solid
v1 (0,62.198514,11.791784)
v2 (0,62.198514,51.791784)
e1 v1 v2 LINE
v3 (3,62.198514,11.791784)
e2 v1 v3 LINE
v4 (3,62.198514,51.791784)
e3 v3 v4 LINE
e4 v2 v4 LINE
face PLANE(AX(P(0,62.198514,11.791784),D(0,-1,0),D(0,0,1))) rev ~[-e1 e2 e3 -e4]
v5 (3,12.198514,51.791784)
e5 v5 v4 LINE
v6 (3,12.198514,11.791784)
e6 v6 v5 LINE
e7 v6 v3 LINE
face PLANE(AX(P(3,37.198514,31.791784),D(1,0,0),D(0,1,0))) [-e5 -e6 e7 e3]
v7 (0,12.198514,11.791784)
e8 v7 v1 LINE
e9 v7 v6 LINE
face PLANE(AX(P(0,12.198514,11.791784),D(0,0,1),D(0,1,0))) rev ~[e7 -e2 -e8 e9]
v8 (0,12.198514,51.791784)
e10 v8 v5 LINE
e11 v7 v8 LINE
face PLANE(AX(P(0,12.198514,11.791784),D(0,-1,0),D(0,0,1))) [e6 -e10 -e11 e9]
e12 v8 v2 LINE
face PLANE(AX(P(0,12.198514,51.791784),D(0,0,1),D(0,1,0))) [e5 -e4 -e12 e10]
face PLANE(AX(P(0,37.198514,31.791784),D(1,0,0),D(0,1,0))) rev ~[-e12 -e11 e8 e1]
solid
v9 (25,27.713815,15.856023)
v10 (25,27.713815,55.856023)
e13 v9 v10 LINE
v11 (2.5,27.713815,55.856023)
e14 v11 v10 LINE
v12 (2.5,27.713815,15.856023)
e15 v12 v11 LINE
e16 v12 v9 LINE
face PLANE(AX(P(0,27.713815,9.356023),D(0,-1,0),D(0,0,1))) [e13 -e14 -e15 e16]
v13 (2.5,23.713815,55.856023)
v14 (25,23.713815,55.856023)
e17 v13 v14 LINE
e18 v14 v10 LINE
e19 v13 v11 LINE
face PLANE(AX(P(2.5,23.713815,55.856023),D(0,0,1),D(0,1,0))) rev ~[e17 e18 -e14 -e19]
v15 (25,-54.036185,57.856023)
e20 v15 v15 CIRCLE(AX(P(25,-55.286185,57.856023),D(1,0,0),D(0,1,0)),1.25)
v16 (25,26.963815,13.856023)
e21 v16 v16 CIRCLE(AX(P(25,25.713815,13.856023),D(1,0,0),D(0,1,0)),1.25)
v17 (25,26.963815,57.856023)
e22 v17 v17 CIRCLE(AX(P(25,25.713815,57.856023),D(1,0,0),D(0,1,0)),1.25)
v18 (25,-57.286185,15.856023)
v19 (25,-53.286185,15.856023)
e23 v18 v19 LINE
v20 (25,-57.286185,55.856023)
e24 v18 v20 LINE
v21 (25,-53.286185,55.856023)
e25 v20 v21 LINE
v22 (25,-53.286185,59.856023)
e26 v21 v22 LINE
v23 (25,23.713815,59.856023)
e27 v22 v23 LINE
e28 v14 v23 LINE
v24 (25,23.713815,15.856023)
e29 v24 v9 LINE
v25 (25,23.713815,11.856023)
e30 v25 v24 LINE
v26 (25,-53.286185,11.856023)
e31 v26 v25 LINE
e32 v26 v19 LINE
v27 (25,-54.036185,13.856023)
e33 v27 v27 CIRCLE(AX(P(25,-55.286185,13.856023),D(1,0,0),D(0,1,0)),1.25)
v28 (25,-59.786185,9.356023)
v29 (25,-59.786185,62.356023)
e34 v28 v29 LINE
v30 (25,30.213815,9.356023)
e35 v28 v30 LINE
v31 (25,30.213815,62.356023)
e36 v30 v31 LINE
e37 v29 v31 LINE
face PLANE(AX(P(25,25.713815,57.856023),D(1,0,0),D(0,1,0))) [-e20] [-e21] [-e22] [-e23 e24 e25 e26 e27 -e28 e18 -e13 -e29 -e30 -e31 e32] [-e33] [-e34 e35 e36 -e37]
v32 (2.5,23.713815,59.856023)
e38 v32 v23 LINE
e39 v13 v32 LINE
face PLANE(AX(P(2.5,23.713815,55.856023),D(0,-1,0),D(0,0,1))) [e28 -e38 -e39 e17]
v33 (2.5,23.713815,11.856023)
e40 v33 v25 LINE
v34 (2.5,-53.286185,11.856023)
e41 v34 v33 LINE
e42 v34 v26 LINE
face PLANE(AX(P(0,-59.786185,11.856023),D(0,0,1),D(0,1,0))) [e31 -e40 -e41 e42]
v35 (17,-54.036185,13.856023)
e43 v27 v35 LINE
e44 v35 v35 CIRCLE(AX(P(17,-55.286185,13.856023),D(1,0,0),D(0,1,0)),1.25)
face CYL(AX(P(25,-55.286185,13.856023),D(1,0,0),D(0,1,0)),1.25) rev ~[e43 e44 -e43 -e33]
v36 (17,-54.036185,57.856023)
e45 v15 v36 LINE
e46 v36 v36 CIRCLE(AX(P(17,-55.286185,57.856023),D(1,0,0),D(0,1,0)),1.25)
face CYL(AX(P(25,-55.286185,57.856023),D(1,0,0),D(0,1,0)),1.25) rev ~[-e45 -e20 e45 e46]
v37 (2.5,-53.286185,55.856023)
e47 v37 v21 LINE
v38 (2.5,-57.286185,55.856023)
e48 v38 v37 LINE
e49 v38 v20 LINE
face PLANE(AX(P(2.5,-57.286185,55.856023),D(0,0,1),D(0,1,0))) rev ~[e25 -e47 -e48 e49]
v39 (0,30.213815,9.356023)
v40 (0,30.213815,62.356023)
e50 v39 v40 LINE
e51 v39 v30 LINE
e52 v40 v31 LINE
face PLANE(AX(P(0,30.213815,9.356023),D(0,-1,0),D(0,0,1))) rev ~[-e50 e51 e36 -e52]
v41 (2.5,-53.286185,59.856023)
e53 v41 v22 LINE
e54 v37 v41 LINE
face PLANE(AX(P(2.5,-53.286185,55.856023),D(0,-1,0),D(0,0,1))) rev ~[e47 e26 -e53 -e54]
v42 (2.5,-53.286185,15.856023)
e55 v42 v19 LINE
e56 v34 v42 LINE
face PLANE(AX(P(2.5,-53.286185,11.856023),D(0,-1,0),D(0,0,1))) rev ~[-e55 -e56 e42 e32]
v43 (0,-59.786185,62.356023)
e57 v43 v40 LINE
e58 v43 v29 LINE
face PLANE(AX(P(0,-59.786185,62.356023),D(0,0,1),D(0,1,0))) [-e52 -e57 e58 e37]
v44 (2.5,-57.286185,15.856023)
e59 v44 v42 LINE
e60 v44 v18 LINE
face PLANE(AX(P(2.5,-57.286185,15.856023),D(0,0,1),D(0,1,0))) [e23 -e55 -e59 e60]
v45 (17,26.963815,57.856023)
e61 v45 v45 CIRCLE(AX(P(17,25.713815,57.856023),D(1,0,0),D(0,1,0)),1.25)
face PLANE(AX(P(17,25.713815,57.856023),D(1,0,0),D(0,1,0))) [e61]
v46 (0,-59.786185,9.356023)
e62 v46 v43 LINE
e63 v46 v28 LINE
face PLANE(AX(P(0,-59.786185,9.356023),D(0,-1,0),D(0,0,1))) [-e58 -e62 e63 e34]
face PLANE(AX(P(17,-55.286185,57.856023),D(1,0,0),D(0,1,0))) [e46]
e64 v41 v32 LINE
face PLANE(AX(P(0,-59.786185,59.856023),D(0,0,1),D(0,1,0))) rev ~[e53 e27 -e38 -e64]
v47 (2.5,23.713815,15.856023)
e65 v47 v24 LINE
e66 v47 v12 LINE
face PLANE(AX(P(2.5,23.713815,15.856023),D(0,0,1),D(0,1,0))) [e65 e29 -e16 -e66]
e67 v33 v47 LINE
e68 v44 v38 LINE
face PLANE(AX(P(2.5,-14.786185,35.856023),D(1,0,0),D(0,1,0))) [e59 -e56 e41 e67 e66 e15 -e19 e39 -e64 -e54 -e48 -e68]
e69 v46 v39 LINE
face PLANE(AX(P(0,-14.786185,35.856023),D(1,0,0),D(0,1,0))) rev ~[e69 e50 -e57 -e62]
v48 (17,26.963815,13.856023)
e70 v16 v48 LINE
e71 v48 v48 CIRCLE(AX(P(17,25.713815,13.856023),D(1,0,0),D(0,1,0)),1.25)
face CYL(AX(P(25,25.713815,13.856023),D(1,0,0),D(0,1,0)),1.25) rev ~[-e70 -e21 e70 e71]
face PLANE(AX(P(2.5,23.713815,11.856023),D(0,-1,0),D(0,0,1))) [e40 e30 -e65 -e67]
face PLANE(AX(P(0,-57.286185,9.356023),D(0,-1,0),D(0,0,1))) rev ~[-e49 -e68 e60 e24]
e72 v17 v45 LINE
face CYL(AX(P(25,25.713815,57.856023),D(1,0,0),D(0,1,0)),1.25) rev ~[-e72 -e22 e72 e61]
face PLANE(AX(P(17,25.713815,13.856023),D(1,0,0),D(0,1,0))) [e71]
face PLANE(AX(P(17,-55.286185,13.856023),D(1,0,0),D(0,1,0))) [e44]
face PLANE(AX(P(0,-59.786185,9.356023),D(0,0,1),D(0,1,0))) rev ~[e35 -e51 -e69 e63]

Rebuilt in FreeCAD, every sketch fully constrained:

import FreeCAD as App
import Part
import Sketcher
from FreeCAD import Vector
Q = App.Units.Quantity


def faces_at(feature, points):
    """Names of the faces that lie closest to the given points."""
    faces = feature.Shape.Faces
    near = lambda p: min(range(len(faces)), key=lambda i: faces[i].distToShape(Part.Vertex(*p))[0])
    return sorted({f"Face{near(p) + 1}" for p in points})


def add_polygon(sketch, points):
    """Adds a closed chain of lines whose ends are joined by coincident constraints."""
    first, n = sketch.GeometryCount, len(points)
    for a, b in zip(points, points[1:] + points[:1]):
        sketch.addGeometry(Part.LineSegment(App.Vector(*a, 0), App.Vector(*b, 0)), False)
    for i in range(n):
        sketch.addConstraint(Sketcher.Constraint("Coincident", first + i, 2, first + (i + 1) % n, 1))

doc = App.newDocument("Part")
body = doc.addObject("PartDesign::Body", "Body")

# Sketch on YZ plane
sketch1 = doc.addObject("Sketcher::SketchObject", "Sketch")
body.addObject(sketch1)
sketch1.AttachmentSupport = (doc.YZ_Plane, [""])
sketch1.MapMode = "FlatFace"
add_polygon(sketch1, [(-60, 62), (-60, 9), (30, 9), (30, 62)])  # lines 0-3
sketch1.addConstraint(Sketcher.Constraint("Vertical", 0))
sketch1.addConstraint(Sketcher.Constraint("Horizontal", 1))
sketch1.addConstraint(Sketcher.Constraint("Vertical", 2))
sketch1.addConstraint(Sketcher.Constraint("Horizontal", 3))
sketch1.addConstraint(Sketcher.Constraint("DistanceX", 1, 1, 1, 2, Q("90 mm")))
sketch1.addConstraint(Sketcher.Constraint("DistanceY", 0, 2, 0, 1, Q("53 mm")))
sketch1.addConstraint(Sketcher.Constraint("DistanceX", 0, 2, -1, 1, Q("59.786185 mm")))
sketch1.addConstraint(Sketcher.Constraint("DistanceY", -1, 1, 0, 2, Q("9.356023 mm")))
pad1 = doc.addObject("PartDesign::Pad", "Pad")
body.addObject(pad1)
pad1.Profile = sketch1
pad1.Length = 25
doc.recompute()

thickness = doc.addObject("PartDesign::Thickness", "Thickness")
body.addObject(thickness)
thickness.Base = (pad1, faces_at(pad1, [(25, -14.786, 35.856)]))
thickness.Value = 2.5
thickness.Reversed = True
thickness.Join = "Arc"

# Sketch on YZ plane
sketch2 = doc.addObject("Sketcher::SketchObject", "Sketch001")
body.addObject(sketch2)
sketch2.AttachmentSupport = (doc.YZ_Plane, [""])
sketch2.MapMode = "FlatFace"
sketch2.AttachmentOffset = App.Placement(Vector(0, 0, 2.5), App.Rotation())
add_polygon(sketch2, [(-57.3, 59.9), (-57.3, 55.9), (-53.3, 55.9), (-53.3, 59.9)])  # lines 0-3
sketch2.addConstraint(Sketcher.Constraint("Vertical", 0))
sketch2.addConstraint(Sketcher.Constraint("Horizontal", 1))
sketch2.addConstraint(Sketcher.Constraint("Vertical", 2))
sketch2.addConstraint(Sketcher.Constraint("Horizontal", 3))
sketch2.addConstraint(Sketcher.Constraint("Equal", 3, 0))
sketch2.addConstraint(Sketcher.Constraint("DistanceX", 1, 1, 1, 2, Q("4 mm")))
sketch2.addConstraint(Sketcher.Constraint("DistanceX", 0, 2, -1, 1, Q("57.286185 mm")))
sketch2.addConstraint(Sketcher.Constraint("DistanceY", -1, 1, 0, 2, Q("55.856023 mm")))
pad2 = doc.addObject("PartDesign::Pad", "Pad001")
body.addObject(pad2)
pad2.Profile = sketch2
pad2.Length = 22.5

# Sketch on YZ plane
sketch3 = doc.addObject("Sketcher::SketchObject", "Sketch002")
body.addObject(sketch3)
sketch3.AttachmentSupport = (doc.YZ_Plane, [""])
sketch3.MapMode = "FlatFace"
sketch3.AttachmentOffset = App.Placement(Vector(0, 0, 2.5), App.Rotation())
add_polygon(sketch3, [(-57.3, 15.9), (-57.3, 11.9), (-53.3, 11.9), (-53.3, 15.9)])  # lines 0-3
sketch3.addConstraint(Sketcher.Constraint("Vertical", 0))
sketch3.addConstraint(Sketcher.Constraint("Horizontal", 1))
sketch3.addConstraint(Sketcher.Constraint("Vertical", 2))
sketch3.addConstraint(Sketcher.Constraint("Horizontal", 3))
sketch3.addConstraint(Sketcher.Constraint("Equal", 3, 0))
sketch3.addConstraint(Sketcher.Constraint("DistanceX", 1, 1, 1, 2, Q("4 mm")))
sketch3.addConstraint(Sketcher.Constraint("DistanceX", 0, 2, -1, 1, Q("57.286185 mm")))
sketch3.addConstraint(Sketcher.Constraint("DistanceY", -1, 1, 0, 2, Q("11.856023 mm")))
pad3 = doc.addObject("PartDesign::Pad", "Pad002")
body.addObject(pad3)
pad3.Profile = sketch3
pad3.Length = 22.5

# Sketch on YZ plane
sketch4 = doc.addObject("Sketcher::SketchObject", "Sketch003")
body.addObject(sketch4)
sketch4.AttachmentSupport = (doc.YZ_Plane, [""])
sketch4.MapMode = "FlatFace"
sketch4.AttachmentOffset = App.Placement(Vector(0, 0, 2.5), App.Rotation())
add_polygon(sketch4, [(23.7, 59.9), (23.7, 55.9), (27.7, 55.9), (27.7, 59.9)])  # lines 0-3
add_polygon(sketch4, [(23.7, 15.9), (23.7, 11.9), (27.7, 11.9), (27.7, 15.9)])  # lines 4-7
sketch4.addConstraint(Sketcher.Constraint("Vertical", 0))
sketch4.addConstraint(Sketcher.Constraint("Horizontal", 1))
sketch4.addConstraint(Sketcher.Constraint("Vertical", 2))
sketch4.addConstraint(Sketcher.Constraint("Horizontal", 3))
sketch4.addConstraint(Sketcher.Constraint("Vertical", 4))
sketch4.addConstraint(Sketcher.Constraint("Horizontal", 5))
sketch4.addConstraint(Sketcher.Constraint("Vertical", 6))
sketch4.addConstraint(Sketcher.Constraint("Horizontal", 7))
sketch4.addConstraint(Sketcher.Constraint("Vertical", 3, 2, 4, 2))
sketch4.addConstraint(Sketcher.Constraint("Vertical", 2, 2, 5, 2))
sketch4.addConstraint(Sketcher.Constraint("Equal", 7, 0))
sketch4.addConstraint(Sketcher.Constraint("Equal", 2, 4))
sketch4.addConstraint(Sketcher.Constraint("DistanceX", 1, 1, 1, 2, Q("4 mm")))
sketch4.addConstraint(Sketcher.Constraint("DistanceY", 4, 2, 0, 2, Q("44 mm")))
sketch4.addConstraint(Sketcher.Constraint("DistanceX", -1, 1, 0, 2, Q("23.713815 mm")))
sketch4.addConstraint(Sketcher.Constraint("DistanceY", -1, 1, 0, 2, Q("55.856023 mm")))
pad4 = doc.addObject("PartDesign::Pad", "Pad003")
body.addObject(pad4)
pad4.Profile = sketch4
pad4.Length = 22.5

# Sketch on YZ plane
sketch5 = doc.addObject("Sketcher::SketchObject", "Sketch004")
body.addObject(sketch5)
sketch5.AttachmentSupport = (doc.YZ_Plane, [""])
sketch5.MapMode = "FlatFace"
sketch5.AttachmentOffset = App.Placement(Vector(0, 0, 25), App.Rotation())
sketch5.addGeometry(Part.Circle(Vector(25.7, 13.9, 0), Vector(0, 0, 1), 1.2), False)
sketch5.addGeometry(Part.Circle(Vector(25.7, 57.9, 0), Vector(0, 0, 1), 1.2), False)
sketch5.addGeometry(Part.Circle(Vector(-55.3, 13.9, 0), Vector(0, 0, 1), 1.2), False)
sketch5.addGeometry(Part.Circle(Vector(-55.3, 57.9, 0), Vector(0, 0, 1), 1.2), False)
sketch5.addConstraint(Sketcher.Constraint("Equal", 0, 1))
sketch5.addConstraint(Sketcher.Constraint("Equal", 1, 2))
sketch5.addConstraint(Sketcher.Constraint("Equal", 2, 3))
sketch5.addConstraint(Sketcher.Constraint("Horizontal", 0, 3, 2, 3))
sketch5.addConstraint(Sketcher.Constraint("Horizontal", 1, 3, 3, 3))
sketch5.addConstraint(Sketcher.Constraint("Vertical", 0, 3, 1, 3))
sketch5.addConstraint(Sketcher.Constraint("Vertical", 2, 3, 3, 3))
sketch5.addConstraint(Sketcher.Constraint("Diameter", 0, Q("2.5 mm")))
sketch5.addConstraint(Sketcher.Constraint("DistanceY", 0, 3, 1, 3, Q("44 mm")))
sketch5.addConstraint(Sketcher.Constraint("DistanceX", 2, 3, 0, 3, Q("81 mm")))
sketch5.addConstraint(Sketcher.Constraint("DistanceX", -1, 1, 0, 3, Q("25.713815 mm")))
sketch5.addConstraint(Sketcher.Constraint("DistanceY", -1, 1, 0, 3, Q("13.856023 mm")))
pocket1 = doc.addObject("PartDesign::Pocket", "Pocket")
body.addObject(pocket1)
pocket1.Profile = sketch5
pocket1.Length = 8
body2 = doc.addObject("PartDesign::Body", "Body001")

# Sketch on YZ plane
sketch6 = doc.addObject("Sketcher::SketchObject", "Sketch005")
body2.addObject(sketch6)
sketch6.AttachmentSupport = (doc.getObject("YZ_Plane001"), [""])
sketch6.MapMode = "FlatFace"
add_polygon(sketch6, [(12, 52), (12, 12), (62, 12), (62, 52)])  # lines 0-3
sketch6.addConstraint(Sketcher.Constraint("Vertical", 0))
sketch6.addConstraint(Sketcher.Constraint("Horizontal", 1))
sketch6.addConstraint(Sketcher.Constraint("Vertical", 2))
sketch6.addConstraint(Sketcher.Constraint("Horizontal", 3))
sketch6.addConstraint(Sketcher.Constraint("DistanceX", 1, 1, 1, 2, Q("50 mm")))
sketch6.addConstraint(Sketcher.Constraint("DistanceY", 0, 2, 0, 1, Q("40 mm")))
sketch6.addConstraint(Sketcher.Constraint("DistanceX", -1, 1, 0, 2, Q("12.198514 mm")))
sketch6.addConstraint(Sketcher.Constraint("DistanceY", -1, 1, 0, 2, Q("11.791784 mm")))
pad5 = doc.addObject("PartDesign::Pad", "Pad004")
body2.addObject(pad5)
pad5.Profile = sketch6
pad5.Length = 3

doc.recompute()
